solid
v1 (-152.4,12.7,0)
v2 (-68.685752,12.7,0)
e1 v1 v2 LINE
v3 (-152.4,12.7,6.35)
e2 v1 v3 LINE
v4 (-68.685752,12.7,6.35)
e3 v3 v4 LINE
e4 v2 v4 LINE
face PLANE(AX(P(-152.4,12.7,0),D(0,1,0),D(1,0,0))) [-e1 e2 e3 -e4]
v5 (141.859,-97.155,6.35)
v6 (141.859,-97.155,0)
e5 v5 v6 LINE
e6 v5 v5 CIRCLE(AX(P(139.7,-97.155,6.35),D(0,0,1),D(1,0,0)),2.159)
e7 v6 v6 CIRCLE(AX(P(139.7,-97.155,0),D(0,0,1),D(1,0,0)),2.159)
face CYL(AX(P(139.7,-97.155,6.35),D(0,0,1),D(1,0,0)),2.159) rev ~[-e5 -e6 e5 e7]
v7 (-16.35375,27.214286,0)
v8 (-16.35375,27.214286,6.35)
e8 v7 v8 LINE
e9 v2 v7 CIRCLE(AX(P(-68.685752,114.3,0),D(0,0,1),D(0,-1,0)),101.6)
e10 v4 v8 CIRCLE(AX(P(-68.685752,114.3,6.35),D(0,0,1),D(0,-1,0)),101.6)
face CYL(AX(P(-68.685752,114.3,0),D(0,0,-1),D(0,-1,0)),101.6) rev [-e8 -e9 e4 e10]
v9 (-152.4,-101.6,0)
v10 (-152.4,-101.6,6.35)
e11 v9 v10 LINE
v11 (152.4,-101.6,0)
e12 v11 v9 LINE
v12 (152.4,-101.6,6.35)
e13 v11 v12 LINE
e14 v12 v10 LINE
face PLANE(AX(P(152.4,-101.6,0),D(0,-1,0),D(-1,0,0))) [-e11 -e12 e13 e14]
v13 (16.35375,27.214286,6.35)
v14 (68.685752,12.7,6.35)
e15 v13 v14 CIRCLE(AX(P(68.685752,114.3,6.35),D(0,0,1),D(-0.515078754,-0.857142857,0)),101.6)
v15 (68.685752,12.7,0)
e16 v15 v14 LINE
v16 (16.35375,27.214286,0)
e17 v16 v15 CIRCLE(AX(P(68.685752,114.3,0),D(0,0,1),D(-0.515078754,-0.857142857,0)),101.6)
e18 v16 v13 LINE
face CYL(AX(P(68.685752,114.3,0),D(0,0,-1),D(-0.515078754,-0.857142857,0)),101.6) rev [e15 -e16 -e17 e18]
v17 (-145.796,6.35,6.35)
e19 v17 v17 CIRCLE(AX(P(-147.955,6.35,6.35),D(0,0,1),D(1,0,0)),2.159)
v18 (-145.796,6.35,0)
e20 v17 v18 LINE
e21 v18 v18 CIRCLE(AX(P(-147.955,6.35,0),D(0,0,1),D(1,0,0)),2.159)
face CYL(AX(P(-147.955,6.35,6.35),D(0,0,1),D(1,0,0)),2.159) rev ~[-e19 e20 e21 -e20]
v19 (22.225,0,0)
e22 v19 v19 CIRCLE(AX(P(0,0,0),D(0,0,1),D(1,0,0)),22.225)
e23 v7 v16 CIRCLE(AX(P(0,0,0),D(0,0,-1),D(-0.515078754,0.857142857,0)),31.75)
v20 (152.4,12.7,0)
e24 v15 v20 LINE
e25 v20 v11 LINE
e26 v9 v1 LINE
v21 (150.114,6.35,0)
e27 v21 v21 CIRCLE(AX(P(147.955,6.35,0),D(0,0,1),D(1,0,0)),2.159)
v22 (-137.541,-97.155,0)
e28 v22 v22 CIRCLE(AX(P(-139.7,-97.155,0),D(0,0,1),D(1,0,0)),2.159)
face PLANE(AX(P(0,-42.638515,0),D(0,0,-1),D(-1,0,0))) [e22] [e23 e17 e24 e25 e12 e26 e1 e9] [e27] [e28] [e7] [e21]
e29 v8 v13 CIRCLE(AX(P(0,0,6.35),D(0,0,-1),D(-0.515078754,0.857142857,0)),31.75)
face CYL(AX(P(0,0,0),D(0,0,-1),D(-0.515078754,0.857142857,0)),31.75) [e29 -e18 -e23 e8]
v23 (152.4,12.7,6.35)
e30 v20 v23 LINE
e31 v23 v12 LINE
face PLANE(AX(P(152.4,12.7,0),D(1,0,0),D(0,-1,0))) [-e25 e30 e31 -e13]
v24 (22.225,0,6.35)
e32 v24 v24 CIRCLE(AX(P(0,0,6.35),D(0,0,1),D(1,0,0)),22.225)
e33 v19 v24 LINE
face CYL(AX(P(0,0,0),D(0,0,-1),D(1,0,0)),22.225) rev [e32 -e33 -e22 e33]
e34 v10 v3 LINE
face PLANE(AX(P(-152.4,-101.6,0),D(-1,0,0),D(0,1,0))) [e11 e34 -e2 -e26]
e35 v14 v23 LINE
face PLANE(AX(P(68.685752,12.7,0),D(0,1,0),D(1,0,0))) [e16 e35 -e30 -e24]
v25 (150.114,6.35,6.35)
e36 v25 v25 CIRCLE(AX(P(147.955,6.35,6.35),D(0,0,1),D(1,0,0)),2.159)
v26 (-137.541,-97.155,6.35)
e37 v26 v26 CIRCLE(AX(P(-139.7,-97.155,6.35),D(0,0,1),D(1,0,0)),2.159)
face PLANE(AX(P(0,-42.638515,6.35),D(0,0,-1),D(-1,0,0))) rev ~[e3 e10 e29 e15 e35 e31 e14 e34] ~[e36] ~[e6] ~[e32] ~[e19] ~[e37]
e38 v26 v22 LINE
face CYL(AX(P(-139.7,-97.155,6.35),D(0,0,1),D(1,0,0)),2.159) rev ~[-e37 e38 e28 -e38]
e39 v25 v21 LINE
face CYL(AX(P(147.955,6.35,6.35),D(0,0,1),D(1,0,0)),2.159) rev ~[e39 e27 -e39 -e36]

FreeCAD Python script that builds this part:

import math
import FreeCAD as App
import Part
import Sketcher
from FreeCAD import Vector
Q = App.Units.Quantity

doc = App.newDocument("Part")
body = doc.addObject("PartDesign::Body", "Body")

# Sketch on XY plane
sketch1 = body.newObject("Sketcher::SketchObject", "Sketch")
sketch1.AttachmentSupport = (doc.getObject("XY_Plane"), [""])
sketch1.MapMode = "FlatFace"
sketch1.addGeometry(Part.LineSegment(Vector(-69, 13, 0), Vector(-152, 13, 0)), False)
sketch1.addGeometry(Part.LineSegment(Vector(-152, 13, 0), Vector(-152, -102, 0)), False)
sketch1.addGeometry(Part.LineSegment(Vector(-152, -102, 0), Vector(152, -102, 0)), False)
sketch1.addGeometry(Part.LineSegment(Vector(152, -102, 0), Vector(152, 13, 0)), False)
sketch1.addGeometry(Part.LineSegment(Vector(152, 13, 0), Vector(69, 13, 0)), False)
sketch1.addGeometry(Part.ArcOfCircle(Part.Circle(Vector(69, 114, 0), Vector(0, 0, 1), 102), math.radians(-121), math.radians(-90)), False)
sketch1.addGeometry(Part.ArcOfCircle(Part.Circle(Vector(0, 0, 0), Vector(0, 0, 1), 32), math.radians(59), math.radians(121)), False)
sketch1.addGeometry(Part.ArcOfCircle(Part.Circle(Vector(-69, 114, 0), Vector(0, 0, 1), 102), math.radians(-90), math.radians(-59)), False)
sketch1.addGeometry(Part.Circle(Vector(0, 0, 0), Vector(0, 0, 1), 22), False)
sketch1.addConstraint(Sketcher.Constraint("Coincident", 0, 2, 1, 1))
sketch1.addConstraint(Sketcher.Constraint("Coincident", 1, 2, 2, 1))
sketch1.addConstraint(Sketcher.Constraint("Coincident", 2, 2, 3, 1))
sketch1.addConstraint(Sketcher.Constraint("Coincident", 3, 2, 4, 1))
sketch1.addConstraint(Sketcher.Constraint("Tangent", 4, 2, 5, 2))
sketch1.addConstraint(Sketcher.Constraint("Tangent", 5, 1, 6, 1))
sketch1.addConstraint(Sketcher.Constraint("Tangent", 6, 2, 7, 2))
sketch1.addConstraint(Sketcher.Constraint("Tangent", 7, 1, 0, 1))
sketch1.addConstraint(Sketcher.Constraint("Horizontal", 0))
sketch1.addConstraint(Sketcher.Constraint("Vertical", 1))
sketch1.addConstraint(Sketcher.Constraint("Horizontal", 2))
sketch1.addConstraint(Sketcher.Constraint("Vertical", 3))
sketch1.addConstraint(Sketcher.Constraint("Horizontal", 4))
sketch1.addConstraint(Sketcher.Constraint("Coincident", 6, 3, -1, 1))
sketch1.addConstraint(Sketcher.Constraint("Coincident", 8, 3, -1, 1))
sketch1.addConstraint(Sketcher.Constraint("Equal", 5, 7))
sketch1.addConstraint(Sketcher.Constraint("Symmetric", 0, 2, 3, 2, -2))
sketch1.addConstraint(Sketcher.Constraint("Radius", 5, Q("4 in")))
sketch1.addConstraint(Sketcher.Constraint("Diameter", 8, Q("1.75 in")))
sketch1.addConstraint(Sketcher.Constraint("DistanceX", 2, 1, 2, 2, Q("12 in")))
sketch1.addConstraint(Sketcher.Constraint("Radius", 6, Q("1.25 in")))
sketch1.addConstraint(Sketcher.Constraint("DistanceY", 1, 2, 1, 1, Q("4.5 in")))
sketch1.addConstraint(Sketcher.Constraint("DistanceY", 1, 2, -1, 1, Q("4 in")))
pad1 = body.newObject("PartDesign::Pad", "Pad")
pad1.Profile = sketch1
pad1.Length = Q("0.25 in")

# Sketch on XY plane
sketch2 = body.newObject("Sketcher::SketchObject", "Sketch001")
sketch2.AttachmentSupport = (doc.getObject("XY_Plane"), [""])
sketch2.MapMode = "FlatFace"
sketch2.AttachmentOffset = App.Placement(Vector(0, 0, 0.25 * 25.4), App.Rotation())
sketch2.addGeometry(Part.Circle(Vector(-139.7, -97.2, 0), Vector(0, 0, 1), 2.2), False)
sketch2.addGeometry(Part.Circle(Vector(-148, 6.3, 0), Vector(0, 0, 1), 2.2), False)
sketch2.addGeometry(Part.Circle(Vector(148, 6.3, 0), Vector(0, 0, 1), 2.2), False)
sketch2.addGeometry(Part.Circle(Vector(139.7, -97.2, 0), Vector(0, 0, 1), 2.2), False)
sketch2.addConstraint(Sketcher.Constraint("Equal", 0, 1))
sketch2.addConstraint(Sketcher.Constraint("Equal", 1, 2))
sketch2.addConstraint(Sketcher.Constraint("Equal", 2, 3))
sketch2.addConstraint(Sketcher.Constraint("Symmetric", 1, 3, 2, 3, -2))
sketch2.addConstraint(Sketcher.Constraint("Symmetric", 0, 3, 3, 3, -2))
sketch2.addConstraint(Sketcher.Constraint("Diameter", 0, Q("0.17 in")))
sketch2.addConstraint(Sketcher.Constraint("DistanceX", 0, 3, 3, 3, Q("11 in")))
sketch2.addConstraint(Sketcher.Constraint("DistanceY", -1, 1, 1, 3, Q("0.25 in")))
sketch2.addConstraint(Sketcher.Constraint("DistanceX", 1, 3, 2, 3, Q("11.65 in")))
sketch2.addConstraint(Sketcher.Constraint("DistanceY", 0, 3, -1, 1, Q("3.825 in")))
pocket1 = body.newObject("PartDesign::Pocket", "Pocket")
pocket1.Profile = sketch2
pocket1.Type = "ThroughAll"

doc.recompute()
